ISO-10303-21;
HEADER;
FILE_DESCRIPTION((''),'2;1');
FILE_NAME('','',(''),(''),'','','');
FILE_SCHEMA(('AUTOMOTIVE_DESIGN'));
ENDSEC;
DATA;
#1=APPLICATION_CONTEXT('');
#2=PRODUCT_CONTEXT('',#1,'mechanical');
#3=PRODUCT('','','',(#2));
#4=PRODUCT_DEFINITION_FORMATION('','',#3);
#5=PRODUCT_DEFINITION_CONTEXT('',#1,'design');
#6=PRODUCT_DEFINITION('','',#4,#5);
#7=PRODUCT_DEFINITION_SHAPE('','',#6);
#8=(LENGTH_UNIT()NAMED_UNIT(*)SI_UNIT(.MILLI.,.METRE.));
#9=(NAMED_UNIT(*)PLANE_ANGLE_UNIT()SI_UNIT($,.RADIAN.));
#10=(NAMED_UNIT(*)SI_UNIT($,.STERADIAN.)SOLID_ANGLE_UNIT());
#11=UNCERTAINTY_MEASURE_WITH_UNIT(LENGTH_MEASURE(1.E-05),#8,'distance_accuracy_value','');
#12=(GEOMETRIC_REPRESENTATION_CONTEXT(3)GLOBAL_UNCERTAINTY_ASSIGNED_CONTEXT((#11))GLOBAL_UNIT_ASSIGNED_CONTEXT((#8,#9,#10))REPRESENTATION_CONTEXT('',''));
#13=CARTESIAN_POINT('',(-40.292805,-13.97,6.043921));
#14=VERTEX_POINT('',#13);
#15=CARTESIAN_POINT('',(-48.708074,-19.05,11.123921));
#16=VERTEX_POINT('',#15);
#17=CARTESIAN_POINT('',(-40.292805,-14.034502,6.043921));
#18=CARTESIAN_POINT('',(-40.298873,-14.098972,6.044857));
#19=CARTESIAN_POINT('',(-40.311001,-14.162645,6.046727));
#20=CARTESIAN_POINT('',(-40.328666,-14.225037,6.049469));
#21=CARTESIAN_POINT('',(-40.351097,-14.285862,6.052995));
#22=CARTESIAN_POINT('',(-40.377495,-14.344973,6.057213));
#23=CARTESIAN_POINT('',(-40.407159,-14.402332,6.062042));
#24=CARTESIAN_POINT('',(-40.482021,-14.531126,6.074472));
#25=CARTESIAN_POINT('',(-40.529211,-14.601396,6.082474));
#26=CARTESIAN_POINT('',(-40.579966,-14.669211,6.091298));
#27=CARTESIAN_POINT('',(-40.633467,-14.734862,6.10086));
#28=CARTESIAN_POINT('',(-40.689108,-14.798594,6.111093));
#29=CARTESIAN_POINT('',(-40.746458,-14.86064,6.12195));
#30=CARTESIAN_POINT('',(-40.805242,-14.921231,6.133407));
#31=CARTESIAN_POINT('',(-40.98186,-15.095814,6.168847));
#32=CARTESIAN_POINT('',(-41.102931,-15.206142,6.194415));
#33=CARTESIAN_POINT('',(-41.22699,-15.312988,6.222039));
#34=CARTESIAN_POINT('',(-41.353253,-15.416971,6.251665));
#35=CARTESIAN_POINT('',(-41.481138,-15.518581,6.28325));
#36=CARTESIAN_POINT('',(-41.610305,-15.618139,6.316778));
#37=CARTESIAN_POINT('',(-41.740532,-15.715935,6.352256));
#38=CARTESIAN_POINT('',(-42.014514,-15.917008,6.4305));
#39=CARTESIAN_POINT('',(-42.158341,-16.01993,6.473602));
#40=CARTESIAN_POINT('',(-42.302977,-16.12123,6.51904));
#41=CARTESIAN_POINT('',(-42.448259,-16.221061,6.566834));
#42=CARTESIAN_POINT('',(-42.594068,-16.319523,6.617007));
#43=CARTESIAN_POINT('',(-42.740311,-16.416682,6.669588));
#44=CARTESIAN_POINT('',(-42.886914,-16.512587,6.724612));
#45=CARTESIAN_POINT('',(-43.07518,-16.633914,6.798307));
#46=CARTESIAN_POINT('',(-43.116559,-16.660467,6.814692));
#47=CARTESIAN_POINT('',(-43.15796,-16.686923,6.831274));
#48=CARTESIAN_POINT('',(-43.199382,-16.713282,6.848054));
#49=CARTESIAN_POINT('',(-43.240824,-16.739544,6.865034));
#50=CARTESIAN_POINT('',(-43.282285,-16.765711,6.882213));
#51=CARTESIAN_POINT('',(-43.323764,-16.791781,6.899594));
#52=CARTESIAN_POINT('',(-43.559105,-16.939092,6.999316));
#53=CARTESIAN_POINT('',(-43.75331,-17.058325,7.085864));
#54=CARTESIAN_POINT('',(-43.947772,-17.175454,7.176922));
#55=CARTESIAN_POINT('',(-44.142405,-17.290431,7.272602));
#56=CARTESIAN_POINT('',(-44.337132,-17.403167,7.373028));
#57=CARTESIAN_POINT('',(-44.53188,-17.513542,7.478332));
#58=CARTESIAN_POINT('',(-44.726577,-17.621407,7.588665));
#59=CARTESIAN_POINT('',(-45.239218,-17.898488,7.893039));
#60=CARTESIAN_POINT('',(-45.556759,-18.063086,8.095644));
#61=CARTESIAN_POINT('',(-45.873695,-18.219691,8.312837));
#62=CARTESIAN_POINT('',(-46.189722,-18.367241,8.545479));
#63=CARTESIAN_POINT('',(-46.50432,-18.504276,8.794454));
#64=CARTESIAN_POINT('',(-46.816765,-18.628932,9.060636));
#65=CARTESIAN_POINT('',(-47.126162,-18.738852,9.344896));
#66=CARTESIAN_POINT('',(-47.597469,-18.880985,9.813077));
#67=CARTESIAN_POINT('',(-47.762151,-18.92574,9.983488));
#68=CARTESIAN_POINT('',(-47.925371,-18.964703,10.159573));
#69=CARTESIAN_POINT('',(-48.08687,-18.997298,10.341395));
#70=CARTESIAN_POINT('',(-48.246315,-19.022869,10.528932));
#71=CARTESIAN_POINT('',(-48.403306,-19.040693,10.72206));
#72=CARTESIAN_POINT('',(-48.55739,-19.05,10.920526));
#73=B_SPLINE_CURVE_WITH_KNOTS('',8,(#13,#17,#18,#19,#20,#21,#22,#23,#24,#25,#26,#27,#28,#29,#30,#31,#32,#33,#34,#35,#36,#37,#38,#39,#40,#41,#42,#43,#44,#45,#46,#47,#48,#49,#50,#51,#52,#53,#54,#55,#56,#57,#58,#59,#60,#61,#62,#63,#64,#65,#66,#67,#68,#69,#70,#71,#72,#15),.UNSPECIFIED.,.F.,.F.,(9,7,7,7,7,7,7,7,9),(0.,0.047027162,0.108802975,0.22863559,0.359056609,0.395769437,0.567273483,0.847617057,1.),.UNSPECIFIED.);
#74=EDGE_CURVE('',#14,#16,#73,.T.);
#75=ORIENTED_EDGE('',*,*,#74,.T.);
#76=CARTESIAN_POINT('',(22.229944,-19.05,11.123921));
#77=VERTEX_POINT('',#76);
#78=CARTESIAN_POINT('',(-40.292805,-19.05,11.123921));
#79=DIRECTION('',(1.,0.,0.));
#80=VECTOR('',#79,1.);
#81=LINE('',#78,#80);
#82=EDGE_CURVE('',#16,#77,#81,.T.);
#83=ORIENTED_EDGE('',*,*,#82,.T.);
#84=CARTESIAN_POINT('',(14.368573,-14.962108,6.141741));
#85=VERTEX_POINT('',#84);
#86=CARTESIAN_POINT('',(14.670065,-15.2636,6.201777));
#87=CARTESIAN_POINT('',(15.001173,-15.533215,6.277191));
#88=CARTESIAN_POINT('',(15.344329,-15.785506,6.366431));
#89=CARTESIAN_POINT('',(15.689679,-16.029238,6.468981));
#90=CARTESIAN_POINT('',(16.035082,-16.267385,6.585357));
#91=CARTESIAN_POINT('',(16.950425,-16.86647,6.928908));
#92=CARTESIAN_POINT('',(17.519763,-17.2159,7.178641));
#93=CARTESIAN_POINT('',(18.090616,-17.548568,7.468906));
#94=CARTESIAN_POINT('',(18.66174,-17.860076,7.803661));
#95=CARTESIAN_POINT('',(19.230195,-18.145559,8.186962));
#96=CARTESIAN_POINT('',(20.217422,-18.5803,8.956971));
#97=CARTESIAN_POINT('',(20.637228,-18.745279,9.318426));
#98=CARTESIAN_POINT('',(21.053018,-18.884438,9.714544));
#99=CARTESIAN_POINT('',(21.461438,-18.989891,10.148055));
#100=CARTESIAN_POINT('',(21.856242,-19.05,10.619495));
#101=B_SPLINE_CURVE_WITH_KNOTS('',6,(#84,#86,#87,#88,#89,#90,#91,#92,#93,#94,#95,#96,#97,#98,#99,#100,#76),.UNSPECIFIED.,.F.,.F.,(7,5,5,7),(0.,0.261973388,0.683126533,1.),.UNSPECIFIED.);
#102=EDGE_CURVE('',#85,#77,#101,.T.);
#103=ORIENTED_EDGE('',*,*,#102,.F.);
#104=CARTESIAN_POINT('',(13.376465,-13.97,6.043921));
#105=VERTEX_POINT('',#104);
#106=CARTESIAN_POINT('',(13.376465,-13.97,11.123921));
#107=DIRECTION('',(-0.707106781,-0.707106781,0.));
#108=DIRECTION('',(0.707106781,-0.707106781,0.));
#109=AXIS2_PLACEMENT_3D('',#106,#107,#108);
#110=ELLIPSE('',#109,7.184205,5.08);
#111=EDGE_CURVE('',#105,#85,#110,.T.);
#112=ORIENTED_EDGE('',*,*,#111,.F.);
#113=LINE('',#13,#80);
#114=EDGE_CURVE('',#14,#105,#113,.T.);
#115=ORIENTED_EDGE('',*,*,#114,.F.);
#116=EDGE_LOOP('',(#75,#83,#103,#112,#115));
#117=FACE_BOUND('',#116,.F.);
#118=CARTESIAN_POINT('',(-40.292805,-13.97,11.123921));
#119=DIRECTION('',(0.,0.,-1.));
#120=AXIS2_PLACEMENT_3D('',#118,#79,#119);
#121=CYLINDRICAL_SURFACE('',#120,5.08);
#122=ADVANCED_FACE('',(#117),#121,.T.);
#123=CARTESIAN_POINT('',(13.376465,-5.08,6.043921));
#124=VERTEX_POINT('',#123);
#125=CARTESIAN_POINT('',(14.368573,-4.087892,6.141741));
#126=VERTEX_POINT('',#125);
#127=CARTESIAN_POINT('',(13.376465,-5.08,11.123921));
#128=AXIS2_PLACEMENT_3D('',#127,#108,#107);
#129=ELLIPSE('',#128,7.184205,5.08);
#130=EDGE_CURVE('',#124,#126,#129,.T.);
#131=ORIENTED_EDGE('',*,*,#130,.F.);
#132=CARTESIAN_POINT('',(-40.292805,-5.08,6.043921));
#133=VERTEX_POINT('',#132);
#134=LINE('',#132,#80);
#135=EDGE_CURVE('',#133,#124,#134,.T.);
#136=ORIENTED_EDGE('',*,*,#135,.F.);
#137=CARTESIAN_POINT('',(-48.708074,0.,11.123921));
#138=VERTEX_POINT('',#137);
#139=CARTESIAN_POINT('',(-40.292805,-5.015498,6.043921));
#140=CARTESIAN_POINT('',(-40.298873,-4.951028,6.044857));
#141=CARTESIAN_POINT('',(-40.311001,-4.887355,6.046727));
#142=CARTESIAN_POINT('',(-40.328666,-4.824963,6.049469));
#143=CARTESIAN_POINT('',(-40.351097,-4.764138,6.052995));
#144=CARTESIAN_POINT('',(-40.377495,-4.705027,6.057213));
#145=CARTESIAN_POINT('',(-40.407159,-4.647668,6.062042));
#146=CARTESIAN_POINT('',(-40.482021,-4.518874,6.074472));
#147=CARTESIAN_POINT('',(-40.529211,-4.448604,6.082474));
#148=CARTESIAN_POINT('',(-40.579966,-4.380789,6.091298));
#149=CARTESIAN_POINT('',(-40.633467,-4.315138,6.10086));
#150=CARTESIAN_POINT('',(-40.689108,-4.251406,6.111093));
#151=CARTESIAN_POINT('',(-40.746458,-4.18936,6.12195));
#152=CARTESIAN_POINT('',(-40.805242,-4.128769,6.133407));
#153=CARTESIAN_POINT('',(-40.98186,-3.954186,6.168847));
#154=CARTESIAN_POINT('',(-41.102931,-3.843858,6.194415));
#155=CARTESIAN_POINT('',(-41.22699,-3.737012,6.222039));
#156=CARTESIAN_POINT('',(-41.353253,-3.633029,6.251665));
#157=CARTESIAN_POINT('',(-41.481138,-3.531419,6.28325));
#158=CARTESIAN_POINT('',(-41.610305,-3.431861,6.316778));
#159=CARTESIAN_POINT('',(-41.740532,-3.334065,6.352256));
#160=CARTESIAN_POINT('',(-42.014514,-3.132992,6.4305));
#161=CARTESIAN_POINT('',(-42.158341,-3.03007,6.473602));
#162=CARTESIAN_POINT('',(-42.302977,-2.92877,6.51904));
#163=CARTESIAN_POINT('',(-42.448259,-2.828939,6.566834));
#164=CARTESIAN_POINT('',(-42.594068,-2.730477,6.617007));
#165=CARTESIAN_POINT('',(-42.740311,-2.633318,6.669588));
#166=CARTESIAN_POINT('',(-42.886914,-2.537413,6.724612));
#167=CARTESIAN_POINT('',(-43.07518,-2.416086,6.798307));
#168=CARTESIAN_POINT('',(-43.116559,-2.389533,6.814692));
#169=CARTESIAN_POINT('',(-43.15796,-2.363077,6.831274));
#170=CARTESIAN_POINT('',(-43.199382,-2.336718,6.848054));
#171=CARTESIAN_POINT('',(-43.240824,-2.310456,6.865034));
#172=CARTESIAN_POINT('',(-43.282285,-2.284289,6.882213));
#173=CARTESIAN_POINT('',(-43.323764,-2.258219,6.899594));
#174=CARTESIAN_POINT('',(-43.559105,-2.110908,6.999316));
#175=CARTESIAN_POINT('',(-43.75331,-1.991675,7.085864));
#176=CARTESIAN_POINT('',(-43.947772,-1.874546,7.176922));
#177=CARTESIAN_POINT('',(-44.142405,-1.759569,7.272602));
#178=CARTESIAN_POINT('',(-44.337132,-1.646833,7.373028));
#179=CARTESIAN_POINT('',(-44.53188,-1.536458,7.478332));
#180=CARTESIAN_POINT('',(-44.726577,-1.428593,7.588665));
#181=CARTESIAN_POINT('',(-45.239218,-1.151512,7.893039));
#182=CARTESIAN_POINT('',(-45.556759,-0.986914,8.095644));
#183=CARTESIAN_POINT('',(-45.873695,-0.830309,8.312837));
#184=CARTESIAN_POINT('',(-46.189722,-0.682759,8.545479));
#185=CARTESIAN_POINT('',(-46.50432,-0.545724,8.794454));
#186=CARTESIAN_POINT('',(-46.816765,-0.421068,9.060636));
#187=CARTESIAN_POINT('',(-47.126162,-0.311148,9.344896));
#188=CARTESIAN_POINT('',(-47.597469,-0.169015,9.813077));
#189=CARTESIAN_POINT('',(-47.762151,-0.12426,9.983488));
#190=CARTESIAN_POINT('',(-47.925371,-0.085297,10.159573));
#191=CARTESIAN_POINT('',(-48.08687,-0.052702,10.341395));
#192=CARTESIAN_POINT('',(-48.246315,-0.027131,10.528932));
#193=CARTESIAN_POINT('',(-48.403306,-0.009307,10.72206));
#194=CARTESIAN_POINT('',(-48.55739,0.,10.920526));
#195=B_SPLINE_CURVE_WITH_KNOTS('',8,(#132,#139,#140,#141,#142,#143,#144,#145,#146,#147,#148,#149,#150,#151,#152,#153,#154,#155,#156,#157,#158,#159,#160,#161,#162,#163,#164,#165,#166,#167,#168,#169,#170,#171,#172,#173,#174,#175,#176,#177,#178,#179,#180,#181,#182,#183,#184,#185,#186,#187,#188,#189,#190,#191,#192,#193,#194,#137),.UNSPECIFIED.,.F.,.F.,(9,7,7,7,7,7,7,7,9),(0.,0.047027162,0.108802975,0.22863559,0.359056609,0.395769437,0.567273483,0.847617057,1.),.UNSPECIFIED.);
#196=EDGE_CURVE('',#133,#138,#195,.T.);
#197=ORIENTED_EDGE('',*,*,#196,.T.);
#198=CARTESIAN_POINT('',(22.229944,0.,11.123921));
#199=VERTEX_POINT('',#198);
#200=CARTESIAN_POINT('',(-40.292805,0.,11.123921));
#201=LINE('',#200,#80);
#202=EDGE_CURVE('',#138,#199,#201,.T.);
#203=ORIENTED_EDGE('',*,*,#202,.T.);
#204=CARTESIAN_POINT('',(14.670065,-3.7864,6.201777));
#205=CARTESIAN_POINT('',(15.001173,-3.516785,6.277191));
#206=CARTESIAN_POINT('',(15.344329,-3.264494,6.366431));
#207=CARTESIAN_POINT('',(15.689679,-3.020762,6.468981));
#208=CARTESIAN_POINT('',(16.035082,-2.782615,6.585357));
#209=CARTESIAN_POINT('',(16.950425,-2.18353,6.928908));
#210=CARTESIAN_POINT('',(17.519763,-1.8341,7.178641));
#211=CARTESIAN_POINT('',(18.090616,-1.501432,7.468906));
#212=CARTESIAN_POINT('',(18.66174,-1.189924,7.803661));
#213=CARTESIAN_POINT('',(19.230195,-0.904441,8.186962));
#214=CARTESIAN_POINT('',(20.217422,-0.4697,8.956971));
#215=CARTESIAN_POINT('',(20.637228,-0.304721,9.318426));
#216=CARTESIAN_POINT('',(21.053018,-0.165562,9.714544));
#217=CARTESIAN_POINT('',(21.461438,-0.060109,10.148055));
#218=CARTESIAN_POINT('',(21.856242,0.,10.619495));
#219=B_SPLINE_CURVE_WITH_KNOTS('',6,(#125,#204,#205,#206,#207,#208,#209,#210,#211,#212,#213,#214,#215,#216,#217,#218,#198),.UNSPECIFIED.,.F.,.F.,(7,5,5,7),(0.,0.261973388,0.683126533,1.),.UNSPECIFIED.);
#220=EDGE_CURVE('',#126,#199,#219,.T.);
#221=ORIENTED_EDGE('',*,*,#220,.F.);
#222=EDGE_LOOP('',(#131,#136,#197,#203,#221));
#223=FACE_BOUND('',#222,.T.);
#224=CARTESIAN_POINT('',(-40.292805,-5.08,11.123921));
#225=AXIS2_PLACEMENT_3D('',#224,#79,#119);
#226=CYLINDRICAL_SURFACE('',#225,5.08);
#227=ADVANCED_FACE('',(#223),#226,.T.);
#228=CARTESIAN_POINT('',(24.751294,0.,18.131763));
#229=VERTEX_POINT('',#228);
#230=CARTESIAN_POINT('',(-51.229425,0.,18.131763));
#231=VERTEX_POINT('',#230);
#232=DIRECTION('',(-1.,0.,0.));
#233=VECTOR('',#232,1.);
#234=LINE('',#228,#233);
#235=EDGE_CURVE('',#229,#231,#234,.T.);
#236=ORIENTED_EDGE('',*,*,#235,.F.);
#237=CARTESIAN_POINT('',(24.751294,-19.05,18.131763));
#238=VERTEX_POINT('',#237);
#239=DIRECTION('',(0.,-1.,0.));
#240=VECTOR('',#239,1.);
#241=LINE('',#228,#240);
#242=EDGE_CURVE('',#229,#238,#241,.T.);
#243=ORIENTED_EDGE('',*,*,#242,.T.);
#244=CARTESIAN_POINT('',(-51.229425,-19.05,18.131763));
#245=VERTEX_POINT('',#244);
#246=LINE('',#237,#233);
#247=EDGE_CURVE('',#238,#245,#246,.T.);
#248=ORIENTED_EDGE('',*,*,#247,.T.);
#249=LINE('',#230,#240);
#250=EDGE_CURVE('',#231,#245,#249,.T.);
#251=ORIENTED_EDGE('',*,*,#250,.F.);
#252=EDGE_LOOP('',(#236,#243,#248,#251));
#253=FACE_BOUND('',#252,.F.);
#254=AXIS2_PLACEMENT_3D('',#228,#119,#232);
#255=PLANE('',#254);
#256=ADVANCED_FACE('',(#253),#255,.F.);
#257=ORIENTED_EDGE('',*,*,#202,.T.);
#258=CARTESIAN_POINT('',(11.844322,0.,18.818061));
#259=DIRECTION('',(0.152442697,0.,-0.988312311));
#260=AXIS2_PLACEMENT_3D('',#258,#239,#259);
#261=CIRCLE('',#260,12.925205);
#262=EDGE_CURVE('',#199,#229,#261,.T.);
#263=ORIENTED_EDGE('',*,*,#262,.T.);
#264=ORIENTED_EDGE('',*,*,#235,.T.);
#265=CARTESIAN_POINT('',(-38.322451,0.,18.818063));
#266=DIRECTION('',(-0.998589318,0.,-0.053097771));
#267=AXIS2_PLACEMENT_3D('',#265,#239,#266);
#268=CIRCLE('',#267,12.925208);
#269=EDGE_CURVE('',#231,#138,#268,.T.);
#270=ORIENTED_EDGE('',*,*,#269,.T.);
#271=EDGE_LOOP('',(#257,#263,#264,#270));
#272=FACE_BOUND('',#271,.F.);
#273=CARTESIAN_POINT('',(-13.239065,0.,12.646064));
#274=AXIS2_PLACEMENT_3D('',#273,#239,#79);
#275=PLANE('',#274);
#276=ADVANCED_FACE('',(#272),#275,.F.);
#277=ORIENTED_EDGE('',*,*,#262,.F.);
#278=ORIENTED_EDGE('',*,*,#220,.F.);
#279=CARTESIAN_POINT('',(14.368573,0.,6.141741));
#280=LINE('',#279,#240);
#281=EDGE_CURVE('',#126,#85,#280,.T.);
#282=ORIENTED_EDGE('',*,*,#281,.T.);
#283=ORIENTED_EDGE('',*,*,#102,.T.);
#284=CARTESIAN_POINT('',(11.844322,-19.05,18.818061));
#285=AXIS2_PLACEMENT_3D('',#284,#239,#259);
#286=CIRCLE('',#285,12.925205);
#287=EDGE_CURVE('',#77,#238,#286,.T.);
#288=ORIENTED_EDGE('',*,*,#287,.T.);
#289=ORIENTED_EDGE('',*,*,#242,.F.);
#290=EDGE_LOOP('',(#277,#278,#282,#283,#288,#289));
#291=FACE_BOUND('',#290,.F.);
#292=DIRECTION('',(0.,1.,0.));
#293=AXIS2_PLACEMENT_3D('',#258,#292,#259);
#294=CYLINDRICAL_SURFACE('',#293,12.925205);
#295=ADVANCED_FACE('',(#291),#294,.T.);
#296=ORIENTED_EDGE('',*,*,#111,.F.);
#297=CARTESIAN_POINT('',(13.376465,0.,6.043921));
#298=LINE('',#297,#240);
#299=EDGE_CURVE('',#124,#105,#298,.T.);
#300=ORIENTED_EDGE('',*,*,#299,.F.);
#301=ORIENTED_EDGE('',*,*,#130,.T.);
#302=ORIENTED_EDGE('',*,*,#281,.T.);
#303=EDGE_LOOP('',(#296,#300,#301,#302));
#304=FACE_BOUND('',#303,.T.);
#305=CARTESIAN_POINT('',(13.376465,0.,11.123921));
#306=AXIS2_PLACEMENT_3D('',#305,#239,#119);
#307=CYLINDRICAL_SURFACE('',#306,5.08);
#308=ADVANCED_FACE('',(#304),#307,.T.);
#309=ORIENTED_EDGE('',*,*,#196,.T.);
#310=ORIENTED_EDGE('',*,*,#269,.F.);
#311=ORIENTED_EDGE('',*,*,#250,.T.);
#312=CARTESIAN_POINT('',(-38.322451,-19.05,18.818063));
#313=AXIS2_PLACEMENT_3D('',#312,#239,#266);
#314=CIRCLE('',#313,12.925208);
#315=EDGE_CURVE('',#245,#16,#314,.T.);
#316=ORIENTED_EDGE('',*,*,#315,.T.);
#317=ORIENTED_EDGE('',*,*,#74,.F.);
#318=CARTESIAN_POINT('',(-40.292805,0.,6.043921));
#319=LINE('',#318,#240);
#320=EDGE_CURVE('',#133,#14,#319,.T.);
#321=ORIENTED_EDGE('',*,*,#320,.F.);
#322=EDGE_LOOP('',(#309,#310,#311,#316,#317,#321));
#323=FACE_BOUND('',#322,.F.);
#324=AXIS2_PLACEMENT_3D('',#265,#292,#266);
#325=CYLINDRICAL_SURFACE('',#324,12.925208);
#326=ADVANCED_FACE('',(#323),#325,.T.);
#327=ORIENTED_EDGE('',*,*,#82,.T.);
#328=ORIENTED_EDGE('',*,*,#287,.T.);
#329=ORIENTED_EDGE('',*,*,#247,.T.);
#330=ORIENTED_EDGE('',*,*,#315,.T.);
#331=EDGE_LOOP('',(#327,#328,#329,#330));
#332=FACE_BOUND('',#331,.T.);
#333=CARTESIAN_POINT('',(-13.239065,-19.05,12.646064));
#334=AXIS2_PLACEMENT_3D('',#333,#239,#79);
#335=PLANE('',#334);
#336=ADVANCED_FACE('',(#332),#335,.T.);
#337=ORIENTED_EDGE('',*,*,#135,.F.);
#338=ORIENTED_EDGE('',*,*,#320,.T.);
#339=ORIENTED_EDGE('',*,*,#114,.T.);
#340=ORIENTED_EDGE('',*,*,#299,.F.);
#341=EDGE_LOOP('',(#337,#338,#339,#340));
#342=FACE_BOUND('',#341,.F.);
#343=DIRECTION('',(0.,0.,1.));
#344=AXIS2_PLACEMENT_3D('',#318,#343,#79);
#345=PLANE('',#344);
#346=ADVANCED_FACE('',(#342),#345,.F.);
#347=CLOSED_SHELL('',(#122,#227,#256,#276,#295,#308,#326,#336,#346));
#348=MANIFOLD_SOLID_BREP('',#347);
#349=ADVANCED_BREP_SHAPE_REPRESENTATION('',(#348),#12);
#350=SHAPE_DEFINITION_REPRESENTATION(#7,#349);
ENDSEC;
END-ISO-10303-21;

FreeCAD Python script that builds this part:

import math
import FreeCAD as App
import Part
import Sketcher

V = App.Vector
Q = App.Units.Quantity


def edges_at(feature, points):
    """Names of the edges that pass closest to the given points."""
    edges = feature.Shape.Edges
    near = lambda p: min(range(len(edges)), key=lambda i: edges[i].distToShape(Part.Vertex(*p))[0])
    return sorted({f"Edge{near(p) + 1}" for p in points})

doc = App.newDocument("Part")
body = doc.addObject("PartDesign::Body", "Body")

# Sketch on XZ plane
sketch1 = body.newObject("Sketcher::SketchObject", "Sketch")
sketch1.AttachmentSupport = (doc.getObject("XZ_Plane"), [""])
sketch1.MapMode = "FlatFace"
sketch1.addGeometry([
    Part.LineSegment(V(25, 18, 0), V(-51, 18, 0)),
    Part.ArcOfCircle(Part.Circle(V(-38, 19, 0), V(0, 0, 1), 13), math.radians(-177), math.radians(-99)),
    Part.LineSegment(V(-40, 6, 0), V(14, 6, 0)),
    Part.ArcOfCircle(Part.Circle(V(12, 19, 0), V(0, 0, 1), 13), math.radians(-81), math.radians(-3)),
], False)
sketch1.addConstraint([
    Sketcher.Constraint("Coincident", 0, 2, 1, 1),
    Sketcher.Constraint("Coincident", 1, 2, 2, 1),
    Sketcher.Constraint("Coincident", 2, 2, 3, 1),
    Sketcher.Constraint("Coincident", 3, 2, 0, 1),
    Sketcher.Constraint("Horizontal", 0),
    Sketcher.Constraint("Horizontal", 2),
    Sketcher.Constraint("Radius", 1, 12.925208),
    Sketcher.Constraint("Radius", 3, 12.925205),
    Sketcher.Constraint("DistanceX", 0, 2, 0, 1, 75.980719),
    Sketcher.Constraint("DistanceX", 2, 1, 2, 2, 54.10748),
    Sketcher.Constraint("DistanceY", 0, 2, 1, 3, 0.6863),
    Sketcher.Constraint("DistanceX", 0, 2, 2, 2, 65.0441),
    Sketcher.Constraint("DistanceX", 1, 3, -1, 1, 38.322451),
    Sketcher.Constraint("DistanceY", -1, 1, 3, 3, 18.818061),
])
pad1 = body.newObject("PartDesign::Pad", "Pad")
pad1.Profile = sketch1
pad1.Length = Q("0.75 in")
doc.recompute()

fillet = body.newObject("PartDesign::Fillet", "Fillet")
fillet.Base = (pad1, edges_at(pad1, [(13.815, -9.525, 6.044), (-13.239, 0, 6.044), (-13.239, -19.05, 6.044)]))
fillet.Radius = Q("0.2 in")

doc.recompute()
